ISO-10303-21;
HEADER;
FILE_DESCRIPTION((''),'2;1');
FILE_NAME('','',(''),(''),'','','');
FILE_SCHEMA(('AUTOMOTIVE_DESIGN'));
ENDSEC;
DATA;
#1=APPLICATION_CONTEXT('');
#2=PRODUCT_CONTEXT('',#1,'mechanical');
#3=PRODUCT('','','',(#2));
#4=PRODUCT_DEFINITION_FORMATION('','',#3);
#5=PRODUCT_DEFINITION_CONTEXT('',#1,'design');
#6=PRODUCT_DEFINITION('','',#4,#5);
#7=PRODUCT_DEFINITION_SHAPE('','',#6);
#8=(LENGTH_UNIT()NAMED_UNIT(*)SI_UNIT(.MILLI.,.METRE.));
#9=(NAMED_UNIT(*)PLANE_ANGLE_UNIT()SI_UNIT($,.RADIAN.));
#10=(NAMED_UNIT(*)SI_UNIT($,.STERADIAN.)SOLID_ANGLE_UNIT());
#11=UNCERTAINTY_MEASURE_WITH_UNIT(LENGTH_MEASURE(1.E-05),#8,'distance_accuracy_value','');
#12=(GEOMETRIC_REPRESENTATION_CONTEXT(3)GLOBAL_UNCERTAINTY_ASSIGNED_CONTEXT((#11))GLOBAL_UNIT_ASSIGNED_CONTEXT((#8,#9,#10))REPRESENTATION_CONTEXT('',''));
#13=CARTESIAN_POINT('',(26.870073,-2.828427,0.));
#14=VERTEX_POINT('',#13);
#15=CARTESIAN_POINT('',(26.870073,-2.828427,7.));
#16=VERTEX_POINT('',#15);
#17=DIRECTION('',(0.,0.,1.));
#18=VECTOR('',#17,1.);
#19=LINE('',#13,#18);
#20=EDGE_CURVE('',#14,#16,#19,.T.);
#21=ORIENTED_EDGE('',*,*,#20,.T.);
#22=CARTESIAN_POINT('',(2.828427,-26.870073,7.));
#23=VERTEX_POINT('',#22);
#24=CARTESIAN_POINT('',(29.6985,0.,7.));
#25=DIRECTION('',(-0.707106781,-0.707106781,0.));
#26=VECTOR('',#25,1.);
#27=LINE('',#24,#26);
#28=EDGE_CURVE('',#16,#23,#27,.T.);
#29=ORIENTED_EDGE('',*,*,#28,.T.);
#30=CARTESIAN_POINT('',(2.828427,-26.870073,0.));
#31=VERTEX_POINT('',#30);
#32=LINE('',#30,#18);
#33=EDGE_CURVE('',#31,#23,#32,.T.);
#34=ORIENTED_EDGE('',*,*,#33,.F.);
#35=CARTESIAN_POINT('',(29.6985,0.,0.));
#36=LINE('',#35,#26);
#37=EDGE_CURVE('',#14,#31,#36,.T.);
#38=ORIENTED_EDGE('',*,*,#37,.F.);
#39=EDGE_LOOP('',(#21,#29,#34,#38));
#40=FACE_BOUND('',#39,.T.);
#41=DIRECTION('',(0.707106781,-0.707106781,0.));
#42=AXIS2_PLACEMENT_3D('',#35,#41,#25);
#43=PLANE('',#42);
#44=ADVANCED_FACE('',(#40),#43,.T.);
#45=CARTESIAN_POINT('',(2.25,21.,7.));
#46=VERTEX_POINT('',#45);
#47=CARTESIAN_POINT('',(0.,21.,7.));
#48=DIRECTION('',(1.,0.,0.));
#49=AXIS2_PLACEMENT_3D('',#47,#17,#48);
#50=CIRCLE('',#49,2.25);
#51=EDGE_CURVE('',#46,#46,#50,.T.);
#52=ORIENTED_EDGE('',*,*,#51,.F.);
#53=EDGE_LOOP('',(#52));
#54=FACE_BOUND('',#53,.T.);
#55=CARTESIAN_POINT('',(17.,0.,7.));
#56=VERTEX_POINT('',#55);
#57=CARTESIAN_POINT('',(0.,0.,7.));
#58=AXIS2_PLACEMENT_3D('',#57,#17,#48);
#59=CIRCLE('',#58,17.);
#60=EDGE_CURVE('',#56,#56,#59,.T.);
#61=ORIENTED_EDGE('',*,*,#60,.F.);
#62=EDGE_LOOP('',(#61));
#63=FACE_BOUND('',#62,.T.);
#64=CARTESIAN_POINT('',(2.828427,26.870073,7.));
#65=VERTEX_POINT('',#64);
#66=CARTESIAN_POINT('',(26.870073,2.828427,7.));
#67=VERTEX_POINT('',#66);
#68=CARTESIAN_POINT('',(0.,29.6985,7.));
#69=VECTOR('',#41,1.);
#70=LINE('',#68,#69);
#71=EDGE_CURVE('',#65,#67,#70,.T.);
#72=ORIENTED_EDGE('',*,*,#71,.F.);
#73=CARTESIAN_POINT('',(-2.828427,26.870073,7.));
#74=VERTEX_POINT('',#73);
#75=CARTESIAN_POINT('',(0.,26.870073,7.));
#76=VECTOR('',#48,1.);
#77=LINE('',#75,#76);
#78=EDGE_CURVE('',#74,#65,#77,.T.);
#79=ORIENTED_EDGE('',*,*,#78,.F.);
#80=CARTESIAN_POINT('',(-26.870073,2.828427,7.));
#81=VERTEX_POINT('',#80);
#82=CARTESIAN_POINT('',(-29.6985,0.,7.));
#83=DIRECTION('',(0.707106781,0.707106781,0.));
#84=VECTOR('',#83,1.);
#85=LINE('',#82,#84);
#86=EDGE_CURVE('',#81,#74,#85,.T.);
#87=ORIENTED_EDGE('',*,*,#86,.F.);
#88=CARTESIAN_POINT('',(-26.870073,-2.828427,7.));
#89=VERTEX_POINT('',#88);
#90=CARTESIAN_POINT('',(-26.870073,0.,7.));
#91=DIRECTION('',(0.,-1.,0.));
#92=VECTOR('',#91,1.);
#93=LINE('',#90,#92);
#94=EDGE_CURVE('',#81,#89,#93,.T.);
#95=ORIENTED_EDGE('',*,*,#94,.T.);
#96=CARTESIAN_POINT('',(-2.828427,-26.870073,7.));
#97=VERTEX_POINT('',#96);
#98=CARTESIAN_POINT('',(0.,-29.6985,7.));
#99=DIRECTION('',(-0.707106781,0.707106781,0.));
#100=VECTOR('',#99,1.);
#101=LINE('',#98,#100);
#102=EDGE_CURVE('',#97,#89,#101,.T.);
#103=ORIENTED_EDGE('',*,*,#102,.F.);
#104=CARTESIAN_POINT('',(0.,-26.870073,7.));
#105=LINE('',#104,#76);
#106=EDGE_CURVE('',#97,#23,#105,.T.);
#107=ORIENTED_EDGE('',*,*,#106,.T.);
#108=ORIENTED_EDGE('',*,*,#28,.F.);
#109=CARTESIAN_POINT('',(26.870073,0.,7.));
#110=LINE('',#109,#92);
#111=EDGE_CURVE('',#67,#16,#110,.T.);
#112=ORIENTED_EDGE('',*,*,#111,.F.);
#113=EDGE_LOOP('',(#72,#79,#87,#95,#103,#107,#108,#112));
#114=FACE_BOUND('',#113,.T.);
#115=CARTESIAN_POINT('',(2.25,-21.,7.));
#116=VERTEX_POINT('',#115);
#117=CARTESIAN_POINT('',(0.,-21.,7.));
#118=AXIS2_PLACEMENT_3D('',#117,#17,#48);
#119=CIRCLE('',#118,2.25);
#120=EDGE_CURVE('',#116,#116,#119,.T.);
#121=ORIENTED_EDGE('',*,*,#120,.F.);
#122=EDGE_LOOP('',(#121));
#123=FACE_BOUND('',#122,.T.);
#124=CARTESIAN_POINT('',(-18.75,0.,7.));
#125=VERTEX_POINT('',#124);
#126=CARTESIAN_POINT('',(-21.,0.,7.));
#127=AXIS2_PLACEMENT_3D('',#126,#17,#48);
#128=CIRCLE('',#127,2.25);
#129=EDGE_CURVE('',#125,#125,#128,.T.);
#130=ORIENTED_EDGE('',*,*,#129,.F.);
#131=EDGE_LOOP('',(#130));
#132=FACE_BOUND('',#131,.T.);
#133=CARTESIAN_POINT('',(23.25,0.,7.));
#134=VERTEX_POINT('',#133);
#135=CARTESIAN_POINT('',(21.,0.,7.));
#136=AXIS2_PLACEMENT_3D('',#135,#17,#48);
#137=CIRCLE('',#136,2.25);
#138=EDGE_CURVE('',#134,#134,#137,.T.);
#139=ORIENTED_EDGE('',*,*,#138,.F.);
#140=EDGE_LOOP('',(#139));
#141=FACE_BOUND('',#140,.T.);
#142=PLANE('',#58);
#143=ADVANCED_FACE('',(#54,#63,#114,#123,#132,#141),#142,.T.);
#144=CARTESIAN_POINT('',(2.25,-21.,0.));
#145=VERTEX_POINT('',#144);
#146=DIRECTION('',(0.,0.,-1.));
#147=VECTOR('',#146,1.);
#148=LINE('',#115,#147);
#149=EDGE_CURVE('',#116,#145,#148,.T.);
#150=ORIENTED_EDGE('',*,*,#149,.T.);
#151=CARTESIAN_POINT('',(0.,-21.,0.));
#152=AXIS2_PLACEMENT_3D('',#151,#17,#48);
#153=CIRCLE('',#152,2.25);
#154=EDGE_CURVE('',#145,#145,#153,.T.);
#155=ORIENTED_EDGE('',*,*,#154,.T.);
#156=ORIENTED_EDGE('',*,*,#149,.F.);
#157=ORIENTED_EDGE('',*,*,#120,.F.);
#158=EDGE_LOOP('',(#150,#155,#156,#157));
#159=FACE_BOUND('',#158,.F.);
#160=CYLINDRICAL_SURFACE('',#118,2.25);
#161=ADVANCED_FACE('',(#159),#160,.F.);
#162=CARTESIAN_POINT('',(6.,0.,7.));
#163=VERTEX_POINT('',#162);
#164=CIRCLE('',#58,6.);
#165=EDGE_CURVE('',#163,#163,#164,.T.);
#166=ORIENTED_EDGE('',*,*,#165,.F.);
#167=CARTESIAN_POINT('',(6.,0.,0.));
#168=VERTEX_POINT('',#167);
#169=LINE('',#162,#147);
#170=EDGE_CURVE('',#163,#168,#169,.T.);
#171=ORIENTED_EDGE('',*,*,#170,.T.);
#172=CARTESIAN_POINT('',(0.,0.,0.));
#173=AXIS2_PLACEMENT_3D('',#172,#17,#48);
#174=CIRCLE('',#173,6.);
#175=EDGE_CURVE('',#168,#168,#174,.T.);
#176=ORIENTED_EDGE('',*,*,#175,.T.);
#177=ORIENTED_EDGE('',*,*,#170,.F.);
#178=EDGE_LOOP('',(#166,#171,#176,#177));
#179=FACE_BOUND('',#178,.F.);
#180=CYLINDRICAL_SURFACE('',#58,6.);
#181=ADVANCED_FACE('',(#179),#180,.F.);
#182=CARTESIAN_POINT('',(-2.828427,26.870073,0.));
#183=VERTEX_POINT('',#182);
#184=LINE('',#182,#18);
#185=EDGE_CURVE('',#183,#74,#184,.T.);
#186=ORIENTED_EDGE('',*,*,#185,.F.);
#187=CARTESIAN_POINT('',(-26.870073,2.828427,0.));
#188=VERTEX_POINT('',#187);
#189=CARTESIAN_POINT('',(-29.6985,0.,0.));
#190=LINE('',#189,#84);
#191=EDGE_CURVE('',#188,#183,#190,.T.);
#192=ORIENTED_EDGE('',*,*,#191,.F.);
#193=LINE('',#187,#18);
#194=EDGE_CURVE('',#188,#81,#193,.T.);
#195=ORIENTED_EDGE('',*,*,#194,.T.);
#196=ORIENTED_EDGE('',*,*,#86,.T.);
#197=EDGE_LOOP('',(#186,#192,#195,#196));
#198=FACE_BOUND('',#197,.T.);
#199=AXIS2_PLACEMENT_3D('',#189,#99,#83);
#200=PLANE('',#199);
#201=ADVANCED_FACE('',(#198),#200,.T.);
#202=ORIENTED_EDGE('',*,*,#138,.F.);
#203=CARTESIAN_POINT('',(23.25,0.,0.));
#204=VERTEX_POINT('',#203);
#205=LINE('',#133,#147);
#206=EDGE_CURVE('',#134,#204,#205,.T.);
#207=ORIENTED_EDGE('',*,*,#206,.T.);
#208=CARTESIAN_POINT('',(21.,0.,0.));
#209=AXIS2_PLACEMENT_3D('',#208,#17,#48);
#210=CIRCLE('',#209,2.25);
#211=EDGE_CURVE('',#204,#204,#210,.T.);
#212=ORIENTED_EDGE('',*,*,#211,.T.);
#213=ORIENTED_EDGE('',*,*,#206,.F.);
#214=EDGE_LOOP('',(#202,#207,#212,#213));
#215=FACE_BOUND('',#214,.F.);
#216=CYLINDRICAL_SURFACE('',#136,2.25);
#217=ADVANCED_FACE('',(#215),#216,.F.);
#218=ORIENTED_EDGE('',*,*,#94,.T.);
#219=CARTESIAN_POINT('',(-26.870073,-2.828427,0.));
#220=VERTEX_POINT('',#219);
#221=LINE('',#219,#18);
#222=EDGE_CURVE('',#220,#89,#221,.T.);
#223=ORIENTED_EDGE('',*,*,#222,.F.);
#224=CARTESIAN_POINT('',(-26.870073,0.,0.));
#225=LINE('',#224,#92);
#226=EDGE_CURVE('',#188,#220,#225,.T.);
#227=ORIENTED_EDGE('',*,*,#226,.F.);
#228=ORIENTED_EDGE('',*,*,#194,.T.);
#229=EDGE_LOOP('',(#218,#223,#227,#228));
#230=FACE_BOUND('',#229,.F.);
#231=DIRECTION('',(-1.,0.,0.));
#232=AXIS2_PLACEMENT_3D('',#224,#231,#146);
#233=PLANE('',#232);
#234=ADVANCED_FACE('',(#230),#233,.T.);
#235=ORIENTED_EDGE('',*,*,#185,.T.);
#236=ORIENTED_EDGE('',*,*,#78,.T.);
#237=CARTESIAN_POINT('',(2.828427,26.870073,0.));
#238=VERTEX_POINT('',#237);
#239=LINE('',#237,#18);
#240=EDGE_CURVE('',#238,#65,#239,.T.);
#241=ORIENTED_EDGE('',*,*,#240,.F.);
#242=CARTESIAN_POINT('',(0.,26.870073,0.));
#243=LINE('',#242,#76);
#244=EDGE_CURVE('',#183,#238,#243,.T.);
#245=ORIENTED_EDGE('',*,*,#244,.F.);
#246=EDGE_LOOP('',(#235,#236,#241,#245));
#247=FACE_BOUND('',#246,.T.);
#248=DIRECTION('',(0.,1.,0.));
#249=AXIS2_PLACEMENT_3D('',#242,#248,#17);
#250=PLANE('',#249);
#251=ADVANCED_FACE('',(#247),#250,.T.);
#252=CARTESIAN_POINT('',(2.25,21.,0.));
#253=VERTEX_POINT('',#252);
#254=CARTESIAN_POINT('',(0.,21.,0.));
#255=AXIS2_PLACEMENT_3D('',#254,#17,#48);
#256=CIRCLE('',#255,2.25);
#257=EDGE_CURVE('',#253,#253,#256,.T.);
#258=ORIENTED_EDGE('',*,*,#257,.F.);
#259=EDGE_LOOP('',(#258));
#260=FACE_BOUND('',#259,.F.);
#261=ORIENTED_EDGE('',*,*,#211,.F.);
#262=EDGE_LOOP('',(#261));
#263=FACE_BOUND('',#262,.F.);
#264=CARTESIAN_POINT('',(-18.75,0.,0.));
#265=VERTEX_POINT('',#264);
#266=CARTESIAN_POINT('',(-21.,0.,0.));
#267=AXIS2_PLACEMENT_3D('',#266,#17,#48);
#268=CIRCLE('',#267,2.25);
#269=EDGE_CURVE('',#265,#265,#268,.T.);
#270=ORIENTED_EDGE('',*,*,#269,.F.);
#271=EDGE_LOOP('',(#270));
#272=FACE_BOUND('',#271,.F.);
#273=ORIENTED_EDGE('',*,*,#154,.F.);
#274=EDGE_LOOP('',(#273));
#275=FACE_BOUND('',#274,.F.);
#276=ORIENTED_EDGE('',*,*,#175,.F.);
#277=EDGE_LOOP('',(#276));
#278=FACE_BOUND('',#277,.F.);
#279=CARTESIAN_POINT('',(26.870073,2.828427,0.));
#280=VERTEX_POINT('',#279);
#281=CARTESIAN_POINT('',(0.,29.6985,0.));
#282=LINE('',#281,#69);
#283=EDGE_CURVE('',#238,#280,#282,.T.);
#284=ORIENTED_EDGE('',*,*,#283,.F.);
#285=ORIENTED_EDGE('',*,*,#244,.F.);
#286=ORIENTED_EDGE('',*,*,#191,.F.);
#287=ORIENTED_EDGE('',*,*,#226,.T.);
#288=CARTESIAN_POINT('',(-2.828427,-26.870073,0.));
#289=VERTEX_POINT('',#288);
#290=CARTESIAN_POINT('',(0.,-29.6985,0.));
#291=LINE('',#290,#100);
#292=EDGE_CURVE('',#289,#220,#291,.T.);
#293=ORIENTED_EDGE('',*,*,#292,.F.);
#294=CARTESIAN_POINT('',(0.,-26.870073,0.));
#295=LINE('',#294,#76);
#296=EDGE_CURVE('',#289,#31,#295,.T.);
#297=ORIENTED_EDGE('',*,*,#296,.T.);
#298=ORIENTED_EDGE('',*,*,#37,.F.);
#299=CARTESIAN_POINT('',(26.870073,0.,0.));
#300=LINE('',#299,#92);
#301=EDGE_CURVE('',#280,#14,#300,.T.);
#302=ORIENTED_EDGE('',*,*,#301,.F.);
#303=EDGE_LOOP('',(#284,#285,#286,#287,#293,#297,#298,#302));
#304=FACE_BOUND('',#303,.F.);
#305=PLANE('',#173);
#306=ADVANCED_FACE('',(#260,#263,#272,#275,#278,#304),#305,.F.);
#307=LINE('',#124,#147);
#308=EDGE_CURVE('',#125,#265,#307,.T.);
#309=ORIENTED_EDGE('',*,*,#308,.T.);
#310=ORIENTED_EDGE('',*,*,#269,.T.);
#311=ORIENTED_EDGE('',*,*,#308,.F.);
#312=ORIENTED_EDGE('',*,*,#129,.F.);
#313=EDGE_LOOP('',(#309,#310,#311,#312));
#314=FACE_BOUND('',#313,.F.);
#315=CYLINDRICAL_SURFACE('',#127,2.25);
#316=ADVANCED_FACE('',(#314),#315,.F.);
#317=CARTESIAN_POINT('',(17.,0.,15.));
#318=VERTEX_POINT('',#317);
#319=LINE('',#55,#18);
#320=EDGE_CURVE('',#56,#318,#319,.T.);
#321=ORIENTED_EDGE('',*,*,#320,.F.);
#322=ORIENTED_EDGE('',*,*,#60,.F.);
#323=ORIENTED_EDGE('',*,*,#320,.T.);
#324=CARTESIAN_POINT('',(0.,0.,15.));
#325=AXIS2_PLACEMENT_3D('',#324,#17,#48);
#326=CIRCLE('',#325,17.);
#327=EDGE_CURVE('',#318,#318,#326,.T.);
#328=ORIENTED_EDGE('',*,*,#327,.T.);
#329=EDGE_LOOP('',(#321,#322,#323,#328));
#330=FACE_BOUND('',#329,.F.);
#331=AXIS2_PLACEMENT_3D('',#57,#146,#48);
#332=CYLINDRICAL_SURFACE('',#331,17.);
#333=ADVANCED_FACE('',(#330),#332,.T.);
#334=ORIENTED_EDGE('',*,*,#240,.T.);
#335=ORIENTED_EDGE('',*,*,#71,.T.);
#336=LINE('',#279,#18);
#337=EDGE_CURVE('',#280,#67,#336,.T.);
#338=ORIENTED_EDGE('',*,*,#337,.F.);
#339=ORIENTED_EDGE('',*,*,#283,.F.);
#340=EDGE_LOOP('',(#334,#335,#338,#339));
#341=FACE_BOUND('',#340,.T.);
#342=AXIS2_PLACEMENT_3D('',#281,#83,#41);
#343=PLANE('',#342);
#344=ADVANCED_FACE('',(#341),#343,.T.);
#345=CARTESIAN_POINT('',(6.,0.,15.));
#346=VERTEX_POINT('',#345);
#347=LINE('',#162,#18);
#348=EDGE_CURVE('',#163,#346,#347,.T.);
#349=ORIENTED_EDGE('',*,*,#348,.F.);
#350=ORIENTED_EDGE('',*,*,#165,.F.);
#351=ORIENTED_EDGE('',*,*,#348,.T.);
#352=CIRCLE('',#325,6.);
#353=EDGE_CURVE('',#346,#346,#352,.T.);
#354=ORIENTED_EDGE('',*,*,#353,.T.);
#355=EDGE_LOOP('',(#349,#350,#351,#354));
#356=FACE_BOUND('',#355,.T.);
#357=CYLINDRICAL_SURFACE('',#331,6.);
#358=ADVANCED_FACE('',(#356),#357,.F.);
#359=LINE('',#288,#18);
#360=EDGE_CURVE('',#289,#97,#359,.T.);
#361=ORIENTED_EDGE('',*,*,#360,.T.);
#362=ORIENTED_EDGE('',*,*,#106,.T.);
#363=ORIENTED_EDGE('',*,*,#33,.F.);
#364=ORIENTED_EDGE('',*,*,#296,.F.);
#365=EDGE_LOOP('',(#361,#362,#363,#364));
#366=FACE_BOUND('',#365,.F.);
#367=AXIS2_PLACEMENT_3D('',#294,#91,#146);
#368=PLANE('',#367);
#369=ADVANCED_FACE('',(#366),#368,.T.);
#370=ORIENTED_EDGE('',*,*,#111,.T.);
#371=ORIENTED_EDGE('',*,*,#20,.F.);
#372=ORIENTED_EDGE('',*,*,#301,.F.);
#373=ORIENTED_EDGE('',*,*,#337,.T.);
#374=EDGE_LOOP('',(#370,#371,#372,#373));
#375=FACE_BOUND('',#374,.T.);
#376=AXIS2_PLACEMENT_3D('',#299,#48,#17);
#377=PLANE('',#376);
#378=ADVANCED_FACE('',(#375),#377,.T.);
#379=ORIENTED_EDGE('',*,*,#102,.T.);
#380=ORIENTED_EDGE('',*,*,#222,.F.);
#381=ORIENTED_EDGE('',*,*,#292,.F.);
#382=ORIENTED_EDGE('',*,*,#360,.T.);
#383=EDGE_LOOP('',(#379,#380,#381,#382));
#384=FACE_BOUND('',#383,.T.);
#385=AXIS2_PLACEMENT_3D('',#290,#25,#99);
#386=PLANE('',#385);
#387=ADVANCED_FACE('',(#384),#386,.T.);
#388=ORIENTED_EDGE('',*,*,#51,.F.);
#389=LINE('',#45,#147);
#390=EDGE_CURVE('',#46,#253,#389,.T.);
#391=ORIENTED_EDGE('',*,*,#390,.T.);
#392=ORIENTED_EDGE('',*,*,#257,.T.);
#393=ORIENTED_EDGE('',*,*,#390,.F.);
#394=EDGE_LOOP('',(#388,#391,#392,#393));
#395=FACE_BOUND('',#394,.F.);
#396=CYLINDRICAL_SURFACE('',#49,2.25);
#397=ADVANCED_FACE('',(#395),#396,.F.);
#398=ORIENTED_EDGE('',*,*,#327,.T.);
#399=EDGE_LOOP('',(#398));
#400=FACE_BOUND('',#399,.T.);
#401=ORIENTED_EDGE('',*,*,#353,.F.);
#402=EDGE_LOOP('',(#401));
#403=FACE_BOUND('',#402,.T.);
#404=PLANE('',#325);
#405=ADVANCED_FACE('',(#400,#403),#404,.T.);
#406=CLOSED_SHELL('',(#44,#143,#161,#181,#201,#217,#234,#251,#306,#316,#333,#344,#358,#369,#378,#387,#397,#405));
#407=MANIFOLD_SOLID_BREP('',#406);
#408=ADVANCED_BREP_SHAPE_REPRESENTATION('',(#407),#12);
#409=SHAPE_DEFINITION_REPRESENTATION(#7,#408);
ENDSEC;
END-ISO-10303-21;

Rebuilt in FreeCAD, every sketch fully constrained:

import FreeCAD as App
import Part
import Sketcher

V = App.Vector


def edges_at(feature, points):
    """Names of the edges that pass closest to the given points."""
    edges = feature.Shape.Edges
    near = lambda p: min(range(len(edges)), key=lambda i: edges[i].distToShape(Part.Vertex(*p))[0])
    return sorted({f"Edge{near(p) + 1}" for p in points})


def add_polygon(sketch, points):
    """Adds a closed chain of lines whose ends are joined by coincident constraints."""
    first, n = sketch.GeometryCount, len(points)
    for a, b in zip(points, points[1:] + points[:1]):
        sketch.addGeometry(Part.LineSegment(App.Vector(*a, 0), App.Vector(*b, 0)), False)
    for i in range(n):
        sketch.addConstraint(Sketcher.Constraint("Coincident", first + i, 2, first + (i + 1) % n, 1))

doc = App.newDocument("Part")
body = doc.addObject("PartDesign::Body", "Body")

# Sketch on XY plane
sketch1 = body.newObject("Sketcher::SketchObject", "Sketch")
sketch1.AttachmentSupport = (doc.getObject("XY_Plane"), [""])
sketch1.MapMode = "FlatFace"
add_polygon(sketch1, [(0, 30), (-30, 0), (0, -30), (30, 0)])  # lines 0-3
sketch1.addConstraint([
    Sketcher.Constraint("Symmetric", 0, 2, 2, 2, -1, 1),
    Sketcher.Constraint("Symmetric", 1, 2, 3, 2, -1, 1),
    Sketcher.Constraint("PointOnObject", 0, 2, -1),
    Sketcher.Constraint("PointOnObject", 1, 2, -2),
    Sketcher.Constraint("Perpendicular", 0, 1),
    Sketcher.Constraint("Distance", 0, 42.0),
])
pad1 = body.newObject("PartDesign::Pad", "Pad")
pad1.Profile = sketch1
pad1.Length = 7

# Sketch on XY plane
sketch2 = body.newObject("Sketcher::SketchObject", "Sketch001")
sketch2.AttachmentSupport = (doc.getObject("XY_Plane"), [""])
sketch2.MapMode = "FlatFace"
sketch2.AttachmentOffset = App.Placement(V(0, 0, 7), App.Rotation())
sketch2.addGeometry([
    Part.Circle(V(0, 21, 0), V(0, 0, 1), 2.2),
    Part.Circle(V(21, 0, 0), V(0, 0, 1), 2.2),
    Part.Circle(V(0, -21, 0), V(0, 0, 1), 2.2),
    Part.Circle(V(-21, 0, 0), V(0, 0, 1), 2.2),
], False)
sketch2.addConstraint([
    Sketcher.Constraint("Equal", 0, 1),
    Sketcher.Constraint("Equal", 1, 2),
    Sketcher.Constraint("Equal", 2, 3),
    Sketcher.Constraint("Symmetric", 0, 3, 2, 3, -1, 1),
    Sketcher.Constraint("Symmetric", 1, 3, 3, 3, -1, 1),
    Sketcher.Constraint("PointOnObject", 0, 3, -2),
    Sketcher.Constraint("PointOnObject", 1, 3, -1),
    Sketcher.Constraint("Diameter", 0, 4.5),
    Sketcher.Constraint("DistanceY", -1, 1, 0, 3, 21.0),
    Sketcher.Constraint("DistanceX", -1, 1, 1, 3, 21.0),
])
pocket1 = body.newObject("PartDesign::Pocket", "Pocket")
pocket1.Profile = sketch2
pocket1.Length = 20

# Sketch on XY plane
sketch3 = body.newObject("Sketcher::SketchObject", "Sketch002")
sketch3.AttachmentSupport = (doc.getObject("XY_Plane"), [""])
sketch3.MapMode = "FlatFace"
sketch3.AttachmentOffset = App.Placement(V(0, 0, 7), App.Rotation())
sketch3.addGeometry(Part.Circle(V(0, 0, 0), V(0, 0, 1), 6), False)
sketch3.addConstraint([
    Sketcher.Constraint("Coincident", 0, 3, -1, 1),
    Sketcher.Constraint("Diameter", 0, 12.0),
])
pocket2 = body.newObject("PartDesign::Pocket", "Pocket001")
pocket2.Profile = sketch3
pocket2.Length = 20

# Sketch on XY plane
sketch4 = body.newObject("Sketcher::SketchObject", "Sketch003")
sketch4.AttachmentSupport = (doc.getObject("XY_Plane"), [""])
sketch4.MapMode = "FlatFace"
sketch4.AttachmentOffset = App.Placement(V(0, 0, 7), App.Rotation())
sketch4.addGeometry([
    Part.Circle(V(0, 0, 0), V(0, 0, 1), 17),
    Part.Circle(V(0, 0, 0), V(0, 0, 1), 6),
], False)
sketch4.addConstraint([
    Sketcher.Constraint("Coincident", 0, 3, -1, 1),
    Sketcher.Constraint("Coincident", 1, 3, -1, 1),
    Sketcher.Constraint("Diameter", 0, 34.0),
    Sketcher.Constraint("Diameter", 1, 12.0),
])
pad2 = body.newObject("PartDesign::Pad", "Pad001")
pad2.Profile = sketch4
pad2.Length = 8
doc.recompute()

chamfer = body.newObject("PartDesign::Chamfer", "Chamfer")
chamfer.Base = (pad2, edges_at(pad2, [(0, 29.698, 3.5)]))
chamfer.Size = 4
doc.recompute()

chamfer2 = body.newObject("PartDesign::Chamfer", "Chamfer001")
chamfer2.Base = (chamfer, edges_at(chamfer, [(29.698, 0, 3.5)]))
chamfer2.Size = 4
doc.recompute()

chamfer3 = body.newObject("PartDesign::Chamfer", "Chamfer002")
chamfer3.Base = (chamfer2, edges_at(chamfer2, [(-29.698, 0, 3.5)]))
chamfer3.Size = 4
doc.recompute()

chamfer4 = body.newObject("PartDesign::Chamfer", "Chamfer003")
chamfer4.Base = (chamfer3, edges_at(chamfer3, [(0, -29.698, 3.5)]))
chamfer4.Size = 4

doc.recompute()
